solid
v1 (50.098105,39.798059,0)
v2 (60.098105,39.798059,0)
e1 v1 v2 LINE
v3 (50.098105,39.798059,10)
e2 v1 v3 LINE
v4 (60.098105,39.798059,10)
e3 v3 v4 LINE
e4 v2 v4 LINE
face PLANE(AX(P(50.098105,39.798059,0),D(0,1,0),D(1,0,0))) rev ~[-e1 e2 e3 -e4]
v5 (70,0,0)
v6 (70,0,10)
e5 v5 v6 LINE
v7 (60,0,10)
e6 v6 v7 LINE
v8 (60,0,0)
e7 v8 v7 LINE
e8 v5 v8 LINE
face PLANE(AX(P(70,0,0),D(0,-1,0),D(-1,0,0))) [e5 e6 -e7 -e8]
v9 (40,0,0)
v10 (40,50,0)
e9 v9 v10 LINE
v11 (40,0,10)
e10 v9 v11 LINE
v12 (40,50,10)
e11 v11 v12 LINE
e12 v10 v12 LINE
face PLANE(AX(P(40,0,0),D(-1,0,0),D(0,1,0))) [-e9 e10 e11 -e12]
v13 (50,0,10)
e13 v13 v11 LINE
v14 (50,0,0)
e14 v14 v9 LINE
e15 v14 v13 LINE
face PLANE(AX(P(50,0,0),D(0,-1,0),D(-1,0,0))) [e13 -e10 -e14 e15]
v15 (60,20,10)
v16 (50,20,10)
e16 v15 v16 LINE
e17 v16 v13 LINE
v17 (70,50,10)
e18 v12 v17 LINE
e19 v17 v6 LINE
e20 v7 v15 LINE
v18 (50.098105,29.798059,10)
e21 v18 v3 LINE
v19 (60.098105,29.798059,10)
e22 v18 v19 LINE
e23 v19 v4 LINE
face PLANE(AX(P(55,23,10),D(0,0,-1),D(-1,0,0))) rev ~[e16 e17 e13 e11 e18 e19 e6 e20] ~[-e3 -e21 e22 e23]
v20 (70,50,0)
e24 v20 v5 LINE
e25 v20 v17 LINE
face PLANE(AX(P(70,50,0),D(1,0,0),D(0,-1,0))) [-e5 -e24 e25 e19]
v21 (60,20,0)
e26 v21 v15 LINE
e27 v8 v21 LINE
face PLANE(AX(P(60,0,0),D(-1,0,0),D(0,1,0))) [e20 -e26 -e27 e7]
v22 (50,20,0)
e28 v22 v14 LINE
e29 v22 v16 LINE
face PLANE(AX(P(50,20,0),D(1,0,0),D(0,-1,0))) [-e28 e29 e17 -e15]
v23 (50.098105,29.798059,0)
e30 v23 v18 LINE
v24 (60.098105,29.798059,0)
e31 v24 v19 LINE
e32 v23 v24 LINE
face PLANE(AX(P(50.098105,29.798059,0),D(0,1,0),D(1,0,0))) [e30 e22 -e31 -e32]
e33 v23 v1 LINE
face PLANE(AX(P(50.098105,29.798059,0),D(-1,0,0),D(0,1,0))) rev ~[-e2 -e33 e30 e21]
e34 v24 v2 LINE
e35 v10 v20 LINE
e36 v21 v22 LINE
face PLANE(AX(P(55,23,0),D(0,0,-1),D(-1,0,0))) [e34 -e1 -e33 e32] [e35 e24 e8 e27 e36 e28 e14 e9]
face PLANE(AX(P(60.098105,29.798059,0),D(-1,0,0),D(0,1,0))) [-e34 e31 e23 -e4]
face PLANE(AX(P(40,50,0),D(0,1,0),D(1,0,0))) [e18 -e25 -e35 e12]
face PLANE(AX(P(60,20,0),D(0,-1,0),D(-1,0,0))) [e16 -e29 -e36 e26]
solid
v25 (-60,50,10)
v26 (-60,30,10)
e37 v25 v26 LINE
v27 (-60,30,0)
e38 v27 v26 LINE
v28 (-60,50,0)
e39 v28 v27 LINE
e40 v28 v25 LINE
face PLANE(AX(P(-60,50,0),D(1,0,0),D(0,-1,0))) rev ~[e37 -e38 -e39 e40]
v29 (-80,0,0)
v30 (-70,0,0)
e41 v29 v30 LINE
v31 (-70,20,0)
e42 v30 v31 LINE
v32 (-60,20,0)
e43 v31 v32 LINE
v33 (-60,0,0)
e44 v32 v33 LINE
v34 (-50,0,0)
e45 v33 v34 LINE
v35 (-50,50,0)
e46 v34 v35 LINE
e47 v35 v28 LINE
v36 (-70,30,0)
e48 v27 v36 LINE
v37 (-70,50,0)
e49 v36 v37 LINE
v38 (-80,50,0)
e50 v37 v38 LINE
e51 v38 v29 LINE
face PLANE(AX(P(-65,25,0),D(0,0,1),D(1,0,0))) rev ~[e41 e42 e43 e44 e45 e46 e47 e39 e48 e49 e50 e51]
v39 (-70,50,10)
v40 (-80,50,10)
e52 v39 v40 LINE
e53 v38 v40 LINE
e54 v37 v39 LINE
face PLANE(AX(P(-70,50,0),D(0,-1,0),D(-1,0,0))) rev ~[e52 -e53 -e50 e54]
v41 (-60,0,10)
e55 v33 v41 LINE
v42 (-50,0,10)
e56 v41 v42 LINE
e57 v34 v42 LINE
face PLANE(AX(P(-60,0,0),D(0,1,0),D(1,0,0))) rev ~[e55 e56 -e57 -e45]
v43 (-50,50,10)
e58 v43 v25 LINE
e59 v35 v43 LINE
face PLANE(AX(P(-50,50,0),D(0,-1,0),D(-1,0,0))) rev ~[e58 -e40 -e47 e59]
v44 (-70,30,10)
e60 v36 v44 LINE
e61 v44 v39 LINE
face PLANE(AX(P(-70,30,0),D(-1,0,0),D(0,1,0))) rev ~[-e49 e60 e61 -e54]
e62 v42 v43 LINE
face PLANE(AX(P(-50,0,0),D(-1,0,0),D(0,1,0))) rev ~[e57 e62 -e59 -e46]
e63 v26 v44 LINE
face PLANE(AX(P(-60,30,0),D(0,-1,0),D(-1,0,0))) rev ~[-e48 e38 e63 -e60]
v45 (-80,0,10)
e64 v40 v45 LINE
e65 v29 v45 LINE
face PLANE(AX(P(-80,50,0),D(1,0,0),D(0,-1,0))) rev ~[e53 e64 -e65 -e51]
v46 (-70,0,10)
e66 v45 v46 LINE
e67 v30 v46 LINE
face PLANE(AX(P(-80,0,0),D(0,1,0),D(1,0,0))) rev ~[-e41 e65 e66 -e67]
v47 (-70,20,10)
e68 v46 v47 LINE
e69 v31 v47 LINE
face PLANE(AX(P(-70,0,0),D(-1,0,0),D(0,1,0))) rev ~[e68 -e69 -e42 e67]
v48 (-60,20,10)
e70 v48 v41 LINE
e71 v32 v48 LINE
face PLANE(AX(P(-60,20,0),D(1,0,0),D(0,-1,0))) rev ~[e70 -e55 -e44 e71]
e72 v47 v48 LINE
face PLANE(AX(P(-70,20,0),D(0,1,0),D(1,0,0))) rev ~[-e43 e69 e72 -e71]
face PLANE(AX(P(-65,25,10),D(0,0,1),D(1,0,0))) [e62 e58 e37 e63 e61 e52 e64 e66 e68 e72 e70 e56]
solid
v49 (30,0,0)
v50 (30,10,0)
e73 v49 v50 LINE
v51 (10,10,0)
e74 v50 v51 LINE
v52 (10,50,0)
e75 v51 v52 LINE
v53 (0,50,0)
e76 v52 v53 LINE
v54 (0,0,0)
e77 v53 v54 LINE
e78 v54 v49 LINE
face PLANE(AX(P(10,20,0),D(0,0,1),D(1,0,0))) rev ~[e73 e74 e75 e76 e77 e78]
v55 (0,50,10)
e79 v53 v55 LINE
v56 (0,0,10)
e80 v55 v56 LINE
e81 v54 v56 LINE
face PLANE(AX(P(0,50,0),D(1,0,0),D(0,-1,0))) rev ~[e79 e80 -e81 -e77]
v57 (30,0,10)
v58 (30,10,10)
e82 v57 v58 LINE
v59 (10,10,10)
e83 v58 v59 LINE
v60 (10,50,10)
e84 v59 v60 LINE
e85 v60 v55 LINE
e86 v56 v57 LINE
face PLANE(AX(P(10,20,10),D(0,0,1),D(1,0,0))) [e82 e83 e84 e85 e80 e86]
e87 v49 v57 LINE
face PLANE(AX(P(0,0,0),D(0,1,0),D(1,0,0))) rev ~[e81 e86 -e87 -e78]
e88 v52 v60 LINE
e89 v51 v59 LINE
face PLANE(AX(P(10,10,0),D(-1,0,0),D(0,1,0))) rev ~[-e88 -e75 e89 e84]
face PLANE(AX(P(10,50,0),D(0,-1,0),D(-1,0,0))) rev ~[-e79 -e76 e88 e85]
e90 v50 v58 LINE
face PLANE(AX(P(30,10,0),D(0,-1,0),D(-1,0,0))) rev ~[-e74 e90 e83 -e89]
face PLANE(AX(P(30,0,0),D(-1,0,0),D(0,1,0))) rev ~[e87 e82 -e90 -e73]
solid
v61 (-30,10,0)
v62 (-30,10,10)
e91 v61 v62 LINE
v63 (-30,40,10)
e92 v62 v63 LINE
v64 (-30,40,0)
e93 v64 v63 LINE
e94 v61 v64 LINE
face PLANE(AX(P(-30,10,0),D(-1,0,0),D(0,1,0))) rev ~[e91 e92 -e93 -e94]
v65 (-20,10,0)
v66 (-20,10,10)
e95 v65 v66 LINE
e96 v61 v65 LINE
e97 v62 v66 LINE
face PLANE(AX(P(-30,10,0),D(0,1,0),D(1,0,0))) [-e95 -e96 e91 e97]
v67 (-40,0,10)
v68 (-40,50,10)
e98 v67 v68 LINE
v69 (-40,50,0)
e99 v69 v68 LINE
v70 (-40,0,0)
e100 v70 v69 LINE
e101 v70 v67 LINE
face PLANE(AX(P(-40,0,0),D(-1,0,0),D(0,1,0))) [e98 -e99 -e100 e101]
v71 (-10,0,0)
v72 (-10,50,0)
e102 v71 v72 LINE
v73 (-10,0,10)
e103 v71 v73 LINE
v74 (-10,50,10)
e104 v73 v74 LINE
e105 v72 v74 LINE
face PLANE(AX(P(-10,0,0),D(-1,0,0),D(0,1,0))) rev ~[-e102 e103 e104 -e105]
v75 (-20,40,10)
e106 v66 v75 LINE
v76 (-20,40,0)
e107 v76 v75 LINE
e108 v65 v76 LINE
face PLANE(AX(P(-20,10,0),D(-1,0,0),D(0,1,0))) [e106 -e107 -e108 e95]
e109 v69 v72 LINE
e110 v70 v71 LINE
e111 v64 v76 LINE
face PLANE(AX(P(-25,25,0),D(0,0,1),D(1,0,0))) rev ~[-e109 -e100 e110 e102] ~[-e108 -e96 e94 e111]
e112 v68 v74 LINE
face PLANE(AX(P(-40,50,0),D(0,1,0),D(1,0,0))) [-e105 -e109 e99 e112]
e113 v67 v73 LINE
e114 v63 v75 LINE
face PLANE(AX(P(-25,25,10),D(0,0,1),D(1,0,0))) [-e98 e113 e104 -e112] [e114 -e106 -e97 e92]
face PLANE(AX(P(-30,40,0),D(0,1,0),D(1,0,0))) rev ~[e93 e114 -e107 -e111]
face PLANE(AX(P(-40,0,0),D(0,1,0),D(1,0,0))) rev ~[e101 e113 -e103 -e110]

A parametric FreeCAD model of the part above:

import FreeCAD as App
import Part
import Sketcher

V = App.Vector
Q = App.Units.Quantity


def add_polygon(sketch, points):
    """Adds a closed chain of lines whose ends are joined by coincident constraints."""
    first, n = sketch.GeometryCount, len(points)
    for a, b in zip(points, points[1:] + points[:1]):
        sketch.addGeometry(Part.LineSegment(App.Vector(*a, 0), App.Vector(*b, 0)), False)
    for i in range(n):
        sketch.addConstraint(Sketcher.Constraint("Coincident", first + i, 2, first + (i + 1) % n, 1))

doc = App.newDocument("Part")
body = doc.addObject("PartDesign::Body", "Body")

sketch1 = doc.addObject("Sketcher::SketchObject", "Sketch")
body.addObject(sketch1)
sketch1.AttachmentSupport = (doc.XY_Plane, [""])
sketch1.MapMode = "FlatFace"
add_polygon(sketch1, [(-80, 0), (-70, 0), (-70, 20), (-60, 20), (-60, 0), (-50, 0), (-50, 50), (-60, 50), (-60, 30), (-70, 30), (-70, 50), (-80, 50)])
sketch1.addConstraint([
    Sketcher.Constraint("Horizontal", 0),
    Sketcher.Constraint("Vertical", 1),
    Sketcher.Constraint("Horizontal", 2),
    Sketcher.Constraint("Vertical", 3),
    Sketcher.Constraint("Horizontal", 4),
    Sketcher.Constraint("Vertical", 5),
    Sketcher.Constraint("Horizontal", 6),
    Sketcher.Constraint("Vertical", 7),
    Sketcher.Constraint("Horizontal", 8),
    Sketcher.Constraint("Vertical", 9),
    Sketcher.Constraint("Horizontal", 10),
    Sketcher.Constraint("Vertical", 11),
    Sketcher.Constraint("PointOnObject", 0, 2, -1),
    Sketcher.Constraint("PointOnObject", 3, 2, -1),
    Sketcher.Constraint("Horizontal", 6, 2, 9, 2),
    Sketcher.Constraint("Vertical", 3, 2, 6, 2),
    Sketcher.Constraint("Vertical", 1, 2, 8, 2),
    Sketcher.Constraint("Equal", 0, 2),
    Sketcher.Constraint("Equal", 2, 4),
    Sketcher.Constraint("Equal", 3, 7),
    Sketcher.Constraint("DistanceX", 0, 1, 0, 2, Q("10 mm")),
    Sketcher.Constraint("DistanceY", 1, 1, 1, 2, Q("20 mm")),
    Sketcher.Constraint("DistanceY", 5, 1, 5, 2, Q("50 mm")),
    Sketcher.Constraint("DistanceX", 0, 2, -1, 1, Q("70 mm")),
])
pad1 = doc.addObject("PartDesign::Pad", "Pad")
body.addObject(pad1)
pad1.Profile = sketch1
pad1.Length = 10
body2 = doc.addObject("PartDesign::Body", "Body001")

sketch2 = doc.addObject("Sketcher::SketchObject", "Sketch001")
body2.addObject(sketch2)
sketch2.AttachmentSupport = (doc.getObject("XY_Plane001"), [""])
sketch2.MapMode = "FlatFace"
add_polygon(sketch2, [(-40, 50), (-40, 0), (-10, 0), (-10, 50)])
add_polygon(sketch2, [(-20, 10), (-30, 10), (-30, 40), (-20, 40)])
sketch2.addConstraint([
    Sketcher.Constraint("Vertical", 0),
    Sketcher.Constraint("Horizontal", 1),
    Sketcher.Constraint("Vertical", 2),
    Sketcher.Constraint("Horizontal", 3),
    Sketcher.Constraint("Horizontal", 4),
    Sketcher.Constraint("Vertical", 5),
    Sketcher.Constraint("Horizontal", 6),
    Sketcher.Constraint("Vertical", 7),
    Sketcher.Constraint("PointOnObject", 0, 2, -1),
    Sketcher.Constraint("Equal", 3, 5),
    Sketcher.Constraint("DistanceX", 1, 1, 1, 2, Q("30 mm")),
    Sketcher.Constraint("DistanceX", 4, 2, 4, 1, Q("10 mm")),
    Sketcher.Constraint("DistanceY", 0, 2, 0, 1, Q("50 mm")),
    Sketcher.Constraint("DistanceX", 0, 2, -1, 1, Q("40 mm")),
    Sketcher.Constraint("DistanceX", 4, 2, -1, 1, Q("30 mm")),
    Sketcher.Constraint("DistanceY", -1, 1, 4, 2, Q("10 mm")),
])
pad2 = doc.addObject("PartDesign::Pad", "Pad001")
body2.addObject(pad2)
pad2.Profile = sketch2
pad2.Length = 10
body3 = doc.addObject("PartDesign::Body", "Body002")

sketch3 = doc.addObject("Sketcher::SketchObject", "Sketch002")
body3.addObject(sketch3)
sketch3.AttachmentSupport = (doc.getObject("XY_Plane002"), [""])
sketch3.MapMode = "FlatFace"
add_polygon(sketch3, [(0, 50), (0, 0), (30, 0), (30, 10), (10, 10), (10, 50)])
sketch3.addConstraint([
    Sketcher.Constraint("Vertical", 0),
    Sketcher.Constraint("Horizontal", 1),
    Sketcher.Constraint("Vertical", 2),
    Sketcher.Constraint("Horizontal", 3),
    Sketcher.Constraint("Vertical", 4),
    Sketcher.Constraint("Horizontal", 5),
    Sketcher.Constraint("Coincident", 0, 2, -1, 1),
    Sketcher.Constraint("Equal", 5, 2),
    Sketcher.Constraint("DistanceX", 1, 1, 1, 2, Q("30 mm")),
    Sketcher.Constraint("DistanceX", 3, 2, 3, 1, Q("20 mm")),
    Sketcher.Constraint("DistanceY", 0, 2, 0, 1, Q("50 mm")),
])
pad3 = doc.addObject("PartDesign::Pad", "Pad002")
body3.addObject(pad3)
pad3.Profile = sketch3
pad3.Length = 10
body4 = doc.addObject("PartDesign::Body", "Body003")

sketch4 = doc.addObject("Sketcher::SketchObject", "Sketch003")
body4.addObject(sketch4)
sketch4.AttachmentSupport = (doc.getObject("XY_Plane003"), [""])
sketch4.MapMode = "FlatFace"
add_polygon(sketch4, [(40, 50), (40, 0), (50, 0), (50, 20), (60, 20), (60, 0), (70, 0), (70, 50)])
add_polygon(sketch4, [(50.098105, 29.798059), (50.098105, 39.798059), (60.098105, 39.798059), (60.098105, 29.798059)])
sketch4.addConstraint([
    Sketcher.Constraint("Vertical", 0),
    Sketcher.Constraint("Horizontal", 1),
    Sketcher.Constraint("Vertical", 2),
    Sketcher.Constraint("Horizontal", 3),
    Sketcher.Constraint("Vertical", 4),
    Sketcher.Constraint("Horizontal", 5),
    Sketcher.Constraint("Vertical", 6),
    Sketcher.Constraint("Horizontal", 7),
    Sketcher.Constraint("Vertical", 8),
    Sketcher.Constraint("Horizontal", 9),
    Sketcher.Constraint("Vertical", 10),
    Sketcher.Constraint("Horizontal", 11),
    Sketcher.Constraint("PointOnObject", 0, 2, -1),
    Sketcher.Constraint("PointOnObject", 4, 2, -1),
    Sketcher.Constraint("Equal", 1, 3),
    Sketcher.Constraint("Equal", 3, 5),
    Sketcher.Constraint("Equal", 5, 9),
    Sketcher.Constraint("Equal", 11, 8),
    Sketcher.Constraint("DistanceX", 1, 1, 1, 2, Q("10 mm")),
    Sketcher.Constraint("DistanceY", 0, 2, 0, 1, Q("50 mm")),
    Sketcher.Constraint("DistanceY", 2, 1, 2, 2, Q("20 mm")),
    Sketcher.Constraint("DistanceX", -1, 1, 0, 2, Q("40 mm")),
    Sketcher.Constraint("DistanceY", -1, 1, 8, 2, Q("39.798059 mm")),
    Sketcher.Constraint("DistanceX", -1, 1, 8, 2, Q("50.098105 mm")),
])
pad4 = doc.addObject("PartDesign::Pad", "Pad003")
body4.addObject(pad4)
pad4.Profile = sketch4
pad4.Length = 10

doc.recompute()
